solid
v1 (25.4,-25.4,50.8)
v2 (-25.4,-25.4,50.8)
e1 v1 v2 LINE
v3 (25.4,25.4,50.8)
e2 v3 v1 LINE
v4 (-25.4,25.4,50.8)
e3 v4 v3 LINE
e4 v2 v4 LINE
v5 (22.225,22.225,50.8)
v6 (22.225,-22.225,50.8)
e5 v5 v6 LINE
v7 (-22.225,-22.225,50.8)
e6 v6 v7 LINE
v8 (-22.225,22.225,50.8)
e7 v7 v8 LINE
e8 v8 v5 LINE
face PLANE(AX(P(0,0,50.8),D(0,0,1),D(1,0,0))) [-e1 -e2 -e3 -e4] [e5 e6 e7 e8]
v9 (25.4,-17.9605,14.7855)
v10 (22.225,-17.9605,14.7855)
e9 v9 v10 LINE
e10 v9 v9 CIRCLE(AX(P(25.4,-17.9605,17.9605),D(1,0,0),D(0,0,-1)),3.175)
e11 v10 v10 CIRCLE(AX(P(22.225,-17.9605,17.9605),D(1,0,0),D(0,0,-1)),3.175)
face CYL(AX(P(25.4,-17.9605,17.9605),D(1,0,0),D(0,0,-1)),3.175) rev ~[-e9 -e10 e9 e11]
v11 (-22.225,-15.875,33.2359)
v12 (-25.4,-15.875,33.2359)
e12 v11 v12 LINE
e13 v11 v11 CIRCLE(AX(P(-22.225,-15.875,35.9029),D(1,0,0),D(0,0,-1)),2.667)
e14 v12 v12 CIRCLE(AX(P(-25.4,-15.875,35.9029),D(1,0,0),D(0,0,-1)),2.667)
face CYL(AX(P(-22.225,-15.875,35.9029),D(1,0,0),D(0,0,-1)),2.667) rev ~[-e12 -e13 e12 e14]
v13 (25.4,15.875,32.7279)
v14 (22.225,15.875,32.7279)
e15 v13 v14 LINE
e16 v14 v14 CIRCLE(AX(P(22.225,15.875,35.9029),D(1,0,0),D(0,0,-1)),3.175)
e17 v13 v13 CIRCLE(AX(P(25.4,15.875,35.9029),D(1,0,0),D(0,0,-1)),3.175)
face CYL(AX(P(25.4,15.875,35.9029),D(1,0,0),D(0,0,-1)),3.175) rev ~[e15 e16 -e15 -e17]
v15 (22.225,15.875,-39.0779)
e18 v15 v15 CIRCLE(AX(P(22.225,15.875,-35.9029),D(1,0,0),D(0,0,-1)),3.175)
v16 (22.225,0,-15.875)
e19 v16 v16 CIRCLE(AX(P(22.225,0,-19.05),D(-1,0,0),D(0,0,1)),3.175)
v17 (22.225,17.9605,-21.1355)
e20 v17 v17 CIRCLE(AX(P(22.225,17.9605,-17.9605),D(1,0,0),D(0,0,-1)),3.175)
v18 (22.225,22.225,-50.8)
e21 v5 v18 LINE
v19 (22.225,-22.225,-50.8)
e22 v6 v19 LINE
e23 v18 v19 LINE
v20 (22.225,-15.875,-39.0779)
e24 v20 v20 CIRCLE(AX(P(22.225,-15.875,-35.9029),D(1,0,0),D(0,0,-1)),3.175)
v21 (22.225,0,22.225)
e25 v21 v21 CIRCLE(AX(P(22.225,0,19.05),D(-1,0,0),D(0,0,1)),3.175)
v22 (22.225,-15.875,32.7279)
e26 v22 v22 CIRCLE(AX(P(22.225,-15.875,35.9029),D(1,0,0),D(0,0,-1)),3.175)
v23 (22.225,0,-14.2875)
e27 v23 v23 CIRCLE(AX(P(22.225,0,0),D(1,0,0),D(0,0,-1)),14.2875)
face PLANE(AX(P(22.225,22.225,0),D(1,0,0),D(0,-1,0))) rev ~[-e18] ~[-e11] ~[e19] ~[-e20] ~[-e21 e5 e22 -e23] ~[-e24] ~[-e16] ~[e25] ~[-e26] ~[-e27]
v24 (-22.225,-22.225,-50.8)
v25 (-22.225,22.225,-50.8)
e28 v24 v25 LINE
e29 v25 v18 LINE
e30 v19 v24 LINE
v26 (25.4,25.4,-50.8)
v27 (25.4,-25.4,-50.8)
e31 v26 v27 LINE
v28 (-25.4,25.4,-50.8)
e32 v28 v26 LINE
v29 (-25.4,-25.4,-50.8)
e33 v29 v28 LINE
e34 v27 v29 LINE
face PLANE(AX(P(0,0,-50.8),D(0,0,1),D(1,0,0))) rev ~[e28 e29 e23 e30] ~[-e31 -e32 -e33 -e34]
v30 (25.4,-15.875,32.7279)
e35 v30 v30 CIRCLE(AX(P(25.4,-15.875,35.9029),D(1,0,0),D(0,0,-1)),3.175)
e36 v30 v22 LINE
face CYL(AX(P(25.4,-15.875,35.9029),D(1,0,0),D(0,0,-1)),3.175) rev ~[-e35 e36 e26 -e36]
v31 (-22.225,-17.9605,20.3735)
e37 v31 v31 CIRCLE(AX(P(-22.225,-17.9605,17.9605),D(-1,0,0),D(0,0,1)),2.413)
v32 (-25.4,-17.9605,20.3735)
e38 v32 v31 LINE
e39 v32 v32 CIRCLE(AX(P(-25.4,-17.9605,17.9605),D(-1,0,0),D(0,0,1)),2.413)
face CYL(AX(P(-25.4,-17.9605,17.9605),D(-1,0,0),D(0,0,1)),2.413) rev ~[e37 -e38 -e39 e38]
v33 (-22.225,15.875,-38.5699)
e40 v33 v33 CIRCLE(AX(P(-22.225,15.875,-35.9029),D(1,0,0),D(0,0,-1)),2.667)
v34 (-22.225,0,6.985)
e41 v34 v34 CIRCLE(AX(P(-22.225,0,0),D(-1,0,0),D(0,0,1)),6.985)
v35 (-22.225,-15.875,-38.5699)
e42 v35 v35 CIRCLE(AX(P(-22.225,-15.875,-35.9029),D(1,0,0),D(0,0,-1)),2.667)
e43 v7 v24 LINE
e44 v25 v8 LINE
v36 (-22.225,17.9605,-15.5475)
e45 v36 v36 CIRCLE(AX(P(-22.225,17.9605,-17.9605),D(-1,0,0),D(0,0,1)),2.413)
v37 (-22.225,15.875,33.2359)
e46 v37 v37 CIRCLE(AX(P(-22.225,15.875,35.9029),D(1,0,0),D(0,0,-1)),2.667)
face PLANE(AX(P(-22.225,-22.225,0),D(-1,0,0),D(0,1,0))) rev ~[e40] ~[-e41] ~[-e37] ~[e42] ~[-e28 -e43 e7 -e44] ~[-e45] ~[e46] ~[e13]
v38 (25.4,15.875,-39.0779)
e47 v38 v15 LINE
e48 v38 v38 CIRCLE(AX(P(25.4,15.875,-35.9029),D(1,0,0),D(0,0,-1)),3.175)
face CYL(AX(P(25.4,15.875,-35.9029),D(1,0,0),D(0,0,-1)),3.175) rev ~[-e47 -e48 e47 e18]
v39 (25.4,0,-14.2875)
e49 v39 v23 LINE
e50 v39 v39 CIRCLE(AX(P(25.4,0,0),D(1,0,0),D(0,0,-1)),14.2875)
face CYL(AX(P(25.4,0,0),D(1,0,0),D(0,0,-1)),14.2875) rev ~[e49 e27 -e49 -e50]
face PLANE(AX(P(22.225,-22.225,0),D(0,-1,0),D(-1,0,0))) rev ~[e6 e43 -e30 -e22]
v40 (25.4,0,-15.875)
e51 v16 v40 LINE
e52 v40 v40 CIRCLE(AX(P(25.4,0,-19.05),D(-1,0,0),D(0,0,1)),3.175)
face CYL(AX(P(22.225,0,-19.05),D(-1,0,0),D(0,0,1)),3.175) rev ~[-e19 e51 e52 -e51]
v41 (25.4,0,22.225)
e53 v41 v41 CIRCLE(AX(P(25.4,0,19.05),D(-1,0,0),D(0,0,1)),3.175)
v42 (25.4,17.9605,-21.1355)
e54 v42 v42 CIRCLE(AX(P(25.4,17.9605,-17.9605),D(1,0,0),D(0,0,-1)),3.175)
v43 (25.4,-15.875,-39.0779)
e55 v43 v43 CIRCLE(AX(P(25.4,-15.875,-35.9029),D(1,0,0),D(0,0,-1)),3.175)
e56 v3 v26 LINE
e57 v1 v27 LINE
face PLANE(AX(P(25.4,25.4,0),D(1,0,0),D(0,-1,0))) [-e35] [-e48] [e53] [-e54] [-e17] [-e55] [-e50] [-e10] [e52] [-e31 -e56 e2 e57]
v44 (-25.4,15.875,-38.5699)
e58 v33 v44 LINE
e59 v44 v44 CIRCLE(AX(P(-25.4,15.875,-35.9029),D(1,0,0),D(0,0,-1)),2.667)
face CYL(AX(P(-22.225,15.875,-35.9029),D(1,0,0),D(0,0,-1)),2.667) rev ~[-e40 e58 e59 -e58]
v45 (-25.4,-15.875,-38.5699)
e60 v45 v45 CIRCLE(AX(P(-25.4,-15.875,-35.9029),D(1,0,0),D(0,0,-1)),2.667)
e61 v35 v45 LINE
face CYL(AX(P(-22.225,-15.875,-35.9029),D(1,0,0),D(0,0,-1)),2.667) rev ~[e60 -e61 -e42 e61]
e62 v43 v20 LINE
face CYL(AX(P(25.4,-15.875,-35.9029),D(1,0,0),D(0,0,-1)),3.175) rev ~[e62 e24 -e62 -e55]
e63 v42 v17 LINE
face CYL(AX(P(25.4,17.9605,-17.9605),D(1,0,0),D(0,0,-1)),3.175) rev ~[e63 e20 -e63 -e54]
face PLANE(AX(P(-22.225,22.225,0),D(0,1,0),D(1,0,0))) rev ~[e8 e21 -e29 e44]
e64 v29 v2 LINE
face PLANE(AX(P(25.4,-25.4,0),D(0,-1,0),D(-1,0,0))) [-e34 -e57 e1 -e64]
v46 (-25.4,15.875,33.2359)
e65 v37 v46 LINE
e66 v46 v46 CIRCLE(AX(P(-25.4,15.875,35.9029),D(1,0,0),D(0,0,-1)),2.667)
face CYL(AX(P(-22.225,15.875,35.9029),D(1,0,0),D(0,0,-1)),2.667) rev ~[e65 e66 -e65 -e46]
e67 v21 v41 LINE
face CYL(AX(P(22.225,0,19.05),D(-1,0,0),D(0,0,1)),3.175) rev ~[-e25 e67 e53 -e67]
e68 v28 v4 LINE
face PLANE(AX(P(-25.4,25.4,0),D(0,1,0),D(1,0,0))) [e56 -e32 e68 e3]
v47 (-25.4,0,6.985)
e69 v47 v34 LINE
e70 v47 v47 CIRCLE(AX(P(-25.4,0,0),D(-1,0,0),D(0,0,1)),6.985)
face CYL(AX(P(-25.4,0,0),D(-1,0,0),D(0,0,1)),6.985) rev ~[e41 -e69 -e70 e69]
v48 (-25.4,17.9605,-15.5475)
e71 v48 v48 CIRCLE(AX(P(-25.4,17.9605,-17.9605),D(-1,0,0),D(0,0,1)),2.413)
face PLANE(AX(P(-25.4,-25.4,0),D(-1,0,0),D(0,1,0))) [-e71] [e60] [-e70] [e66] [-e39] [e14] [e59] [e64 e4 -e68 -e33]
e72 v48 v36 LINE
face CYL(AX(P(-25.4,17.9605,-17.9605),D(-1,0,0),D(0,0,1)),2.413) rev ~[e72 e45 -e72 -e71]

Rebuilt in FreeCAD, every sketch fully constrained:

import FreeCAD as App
import Part
import Sketcher
from FreeCAD import Vector
Q = App.Units.Quantity


def add_polygon(sketch, points):
    """Adds a closed chain of lines whose ends are joined by coincident constraints."""
    first, n = sketch.GeometryCount, len(points)
    for a, b in zip(points, points[1:] + points[:1]):
        sketch.addGeometry(Part.LineSegment(App.Vector(*a, 0), App.Vector(*b, 0)), False)
    for i in range(n):
        sketch.addConstraint(Sketcher.Constraint("Coincident", first + i, 2, first + (i + 1) % n, 1))

doc = App.newDocument("Part")
body = doc.addObject("PartDesign::Body", "Body")

# Sketch on XY plane
sketch1 = doc.addObject("Sketcher::SketchObject", "Sketch")
body.addObject(sketch1)
sketch1.AttachmentSupport = (doc.XY_Plane, [""])
sketch1.MapMode = "FlatFace"
add_polygon(sketch1, [(25.4, 25.4), (-25.4, 25.4), (-25.4, -25.4), (25.4, -25.4)])  # lines 0-3
add_polygon(sketch1, [(-22.225, -22.225), (-22.225, 22.225), (22.225, 22.225), (22.225, -22.225)])  # lines 4-7
sketch1.addConstraint(Sketcher.Constraint("Horizontal", 0))
sketch1.addConstraint(Sketcher.Constraint("Vertical", 1))
sketch1.addConstraint(Sketcher.Constraint("Horizontal", 2))
sketch1.addConstraint(Sketcher.Constraint("Vertical", 3))
sketch1.addConstraint(Sketcher.Constraint("Vertical", 4))
sketch1.addConstraint(Sketcher.Constraint("Horizontal", 5))
sketch1.addConstraint(Sketcher.Constraint("Vertical", 6))
sketch1.addConstraint(Sketcher.Constraint("Horizontal", 7))
sketch1.addConstraint(Sketcher.Constraint("Symmetric", 0, 2, 2, 2, -1, 1))
sketch1.addConstraint(Sketcher.Constraint("Symmetric", 4, 2, 6, 2, -1, 1))
sketch1.addConstraint(Sketcher.Constraint("Equal", 2, 1))
sketch1.addConstraint(Sketcher.Constraint("Equal", 7, 4))
sketch1.addConstraint(Sketcher.Constraint("DistanceX", 0, 2, 0, 1, Q("2 in")))
sketch1.addConstraint(Sketcher.Constraint("DistanceX", 0, 2, 4, 2, Q("0.125 in")))
pad1 = doc.addObject("PartDesign::Pad", "Pad")
body.addObject(pad1)
pad1.Profile = sketch1
pad1.Length = Q("4 in")
pad1.Midplane = True

# Sketch on YZ plane
sketch2 = doc.addObject("Sketcher::SketchObject", "Sketch001")
body.addObject(sketch2)
sketch2.AttachmentSupport = (doc.YZ_Plane, [""])
sketch2.MapMode = "FlatFace"
sketch2.AttachmentOffset = App.Placement(Vector(0, 0, 1 * 25.4), App.Rotation())
sketch2.addGeometry(Part.Circle(Vector(0, 0, 0), Vector(0, 0, 1), 14.2875), False)
sketch2.addConstraint(Sketcher.Constraint("Coincident", 0, 3, -1, 1))
sketch2.addConstraint(Sketcher.Constraint("Diameter", 0, Q("1.125 in")))
pocket1 = doc.addObject("PartDesign::Pocket", "Pocket")
body.addObject(pocket1)
pocket1.Profile = sketch2
pocket1.Type = "UpToFirst"

# Sketch on YZ plane
sketch3 = doc.addObject("Sketcher::SketchObject", "Sketch002")
body.addObject(sketch3)
sketch3.AttachmentSupport = (doc.YZ_Plane, [""])
sketch3.MapMode = "FlatFace"
sketch3.AttachmentOffset = App.Placement(Vector(0, 0, -0.875 * 25.4), App.Rotation())
sketch3.addGeometry(Part.Circle(Vector(-15.875, -35.9029, 0), Vector(0, 0, 1), 2.667), False)
sketch3.addGeometry(Part.Circle(Vector(-15.875, 35.9029, 0), Vector(0, 0, 1), 2.667), False)
sketch3.addGeometry(Part.Circle(Vector(15.875, 35.9029, 0), Vector(0, 0, 1), 2.667), False)
sketch3.addGeometry(Part.Circle(Vector(15.875, -35.9029, 0), Vector(0, 0, 1), 2.667), False)
sketch3.addConstraint(Sketcher.Constraint("Equal", 0, 1))
sketch3.addConstraint(Sketcher.Constraint("Equal", 1, 2))
sketch3.addConstraint(Sketcher.Constraint("Equal", 2, 3))
sketch3.addConstraint(Sketcher.Constraint("Symmetric", 0, 3, 2, 3, -1, 1))
sketch3.addConstraint(Sketcher.Constraint("Symmetric", 1, 3, 3, 3, -1, 1))
sketch3.addConstraint(Sketcher.Constraint("Symmetric", 1, 3, 2, 3, -2))
sketch3.addConstraint(Sketcher.Constraint("Diameter", 0, Q("0.21 in")))
sketch3.addConstraint(Sketcher.Constraint("DistanceX", 1, 3, 2, 3, Q("1.25 in")))
sketch3.addConstraint(Sketcher.Constraint("DistanceY", 0, 3, 1, 3, Q("2.827 in")))
pocket2 = doc.addObject("PartDesign::Pocket", "Pocket001")
body.addObject(pocket2)
pocket2.Profile = sketch3
pocket2.Type = "UpToFirst"

# Sketch on YZ plane
sketch4 = doc.addObject("Sketcher::SketchObject", "Sketch003")
body.addObject(sketch4)
sketch4.AttachmentSupport = (doc.YZ_Plane, [""])
sketch4.MapMode = "FlatFace"
sketch4.AttachmentOffset = App.Placement(Vector(0, 0, 1 * 25.4), App.Rotation())
sketch4.addGeometry(Part.Circle(Vector(-15.875, 35.9029, 0), Vector(0, 0, 1), 3.175), False)
sketch4.addGeometry(Part.Circle(Vector(15.875, 35.9029, 0), Vector(0, 0, 1), 3.175), False)
sketch4.addGeometry(Part.Circle(Vector(-15.875, -35.9029, 0), Vector(0, 0, 1), 3.175), False)
sketch4.addGeometry(Part.Circle(Vector(15.875, -35.9029, 0), Vector(0, 0, 1), 3.175), False)
sketch4.addConstraint(Sketcher.Constraint("Equal", 0, 1))
sketch4.addConstraint(Sketcher.Constraint("Equal", 1, 2))
sketch4.addConstraint(Sketcher.Constraint("Equal", 2, 3))
sketch4.addConstraint(Sketcher.Constraint("Symmetric", 1, 3, 2, 3, -1, 1))
sketch4.addConstraint(Sketcher.Constraint("Symmetric", 0, 3, 3, 3, -1, 1))
sketch4.addConstraint(Sketcher.Constraint("Symmetric", 0, 3, 1, 3, -2))
sketch4.addConstraint(Sketcher.Constraint("Diameter", 0, Q("0.25 in")))
sketch4.addConstraint(Sketcher.Constraint("DistanceX", 0, 3, 1, 3, Q("1.25 in")))
sketch4.addConstraint(Sketcher.Constraint("DistanceY", 2, 3, 0, 3, Q("2.827 in")))
pocket3 = doc.addObject("PartDesign::Pocket", "Pocket002")
body.addObject(pocket3)
pocket3.Profile = sketch4
pocket3.Type = "UpToFirst"

# Sketch on YZ plane
sketch5 = doc.addObject("Sketcher::SketchObject", "Sketch004")
body.addObject(sketch5)
sketch5.AttachmentSupport = (doc.YZ_Plane, [""])
sketch5.MapMode = "FlatFace"
sketch5.AttachmentOffset = App.Placement(Vector(0, 0, 0.875 * 25.4), App.Rotation())
sketch5.addGeometry(Part.Circle(Vector(0, 19.05, 0), Vector(0, 0, 1), 3.175), False)
sketch5.addGeometry(Part.Circle(Vector(0, -19.05, 0), Vector(0, 0, 1), 3.175), False)
sketch5.addConstraint(Sketcher.Constraint("Equal", 0, 1))
sketch5.addConstraint(Sketcher.Constraint("Symmetric", 0, 3, 1, 3, -1, 1))
sketch5.addConstraint(Sketcher.Constraint("PointOnObject", 0, 3, -2))
sketch5.addConstraint(Sketcher.Constraint("Diameter", 0, Q("0.25 in")))
sketch5.addConstraint(Sketcher.Constraint("DistanceY", 1, 3, 0, 3, Q("1.5 in")))
pocket4 = doc.addObject("PartDesign::Pocket", "Pocket003")
body.addObject(pocket4)
pocket4.Profile = sketch5
pocket4.Type = "ThroughAll"
pocket4.Reversed = True

# Sketch on YZ plane
sketch6 = doc.addObject("Sketcher::SketchObject", "Sketch005")
body.addObject(sketch6)
sketch6.AttachmentSupport = (doc.YZ_Plane, [""])
sketch6.MapMode = "FlatFace"
sketch6.AttachmentOffset = App.Placement(Vector(0, 0, 1 * 25.4), App.Rotation())
sketch6.addGeometry(Part.Circle(Vector(17.9605, -17.9605, 0), Vector(0, 0, 1), 3.175), False)
sketch6.addGeometry(Part.Circle(Vector(-17.9605, 17.9605, 0), Vector(0, 0, 1), 3.175), False)
sketch6.addConstraint(Sketcher.Constraint("Equal", 0, 1))
sketch6.addConstraint(Sketcher.Constraint("Symmetric", 0, 3, 1, 3, -1, 1))
sketch6.addConstraint(Sketcher.Constraint("Diameter", 0, Q("0.25 in")))
sketch6.addConstraint(Sketcher.Constraint("DistanceX", -1, 1, 0, 3, Q("0.7071 in")))
sketch6.addConstraint(Sketcher.Constraint("DistanceY", 0, 3, -1, 1, Q("0.7071 in")))
pocket5 = doc.addObject("PartDesign::Pocket", "Pocket004")
body.addObject(pocket5)
pocket5.Profile = sketch6
pocket5.Type = "UpToFirst"

# Sketch on YZ plane
sketch7 = doc.addObject("Sketcher::SketchObject", "Sketch006")
body.addObject(sketch7)
sketch7.AttachmentSupport = (doc.YZ_Plane, [""])
sketch7.MapMode = "FlatFace"
sketch7.AttachmentOffset = App.Placement(Vector(0, 0, -1 * 25.4), App.Rotation())
sketch7.addGeometry(Part.Circle(Vector(0, 0, 0), Vector(0, 0, 1), 6.985), False)
sketch7.addGeometry(Part.Circle(Vector(17.9605, -17.9605, 0), Vector(0, 0, 1), 2.413), False)
sketch7.addGeometry(Part.Circle(Vector(-17.9605, 17.9605, 0), Vector(0, 0, 1), 2.413), False)
sketch7.addConstraint(Sketcher.Constraint("Coincident", 0, 3, -1, 1))
sketch7.addConstraint(Sketcher.Constraint("Equal", 1, 2))
sketch7.addConstraint(Sketcher.Constraint("Symmetric", 1, 3, 2, 3, -1, 1))
sketch7.addConstraint(Sketcher.Constraint("Diameter", 1, Q("0.19 in")))
sketch7.addConstraint(Sketcher.Constraint("Diameter", 0, Q("0.55 in")))
sketch7.addConstraint(Sketcher.Constraint("DistanceX", -1, 1, 1, 3, Q("0.7071 in")))
sketch7.addConstraint(Sketcher.Constraint("DistanceY", 1, 3, -1, 1, Q("0.7071 in")))
pocket6 = doc.addObject("PartDesign::Pocket", "Pocket005")
body.addObject(pocket6)
pocket6.Profile = sketch7
pocket6.Type = "UpToFirst"
pocket6.Reversed = True

doc.recompute()
